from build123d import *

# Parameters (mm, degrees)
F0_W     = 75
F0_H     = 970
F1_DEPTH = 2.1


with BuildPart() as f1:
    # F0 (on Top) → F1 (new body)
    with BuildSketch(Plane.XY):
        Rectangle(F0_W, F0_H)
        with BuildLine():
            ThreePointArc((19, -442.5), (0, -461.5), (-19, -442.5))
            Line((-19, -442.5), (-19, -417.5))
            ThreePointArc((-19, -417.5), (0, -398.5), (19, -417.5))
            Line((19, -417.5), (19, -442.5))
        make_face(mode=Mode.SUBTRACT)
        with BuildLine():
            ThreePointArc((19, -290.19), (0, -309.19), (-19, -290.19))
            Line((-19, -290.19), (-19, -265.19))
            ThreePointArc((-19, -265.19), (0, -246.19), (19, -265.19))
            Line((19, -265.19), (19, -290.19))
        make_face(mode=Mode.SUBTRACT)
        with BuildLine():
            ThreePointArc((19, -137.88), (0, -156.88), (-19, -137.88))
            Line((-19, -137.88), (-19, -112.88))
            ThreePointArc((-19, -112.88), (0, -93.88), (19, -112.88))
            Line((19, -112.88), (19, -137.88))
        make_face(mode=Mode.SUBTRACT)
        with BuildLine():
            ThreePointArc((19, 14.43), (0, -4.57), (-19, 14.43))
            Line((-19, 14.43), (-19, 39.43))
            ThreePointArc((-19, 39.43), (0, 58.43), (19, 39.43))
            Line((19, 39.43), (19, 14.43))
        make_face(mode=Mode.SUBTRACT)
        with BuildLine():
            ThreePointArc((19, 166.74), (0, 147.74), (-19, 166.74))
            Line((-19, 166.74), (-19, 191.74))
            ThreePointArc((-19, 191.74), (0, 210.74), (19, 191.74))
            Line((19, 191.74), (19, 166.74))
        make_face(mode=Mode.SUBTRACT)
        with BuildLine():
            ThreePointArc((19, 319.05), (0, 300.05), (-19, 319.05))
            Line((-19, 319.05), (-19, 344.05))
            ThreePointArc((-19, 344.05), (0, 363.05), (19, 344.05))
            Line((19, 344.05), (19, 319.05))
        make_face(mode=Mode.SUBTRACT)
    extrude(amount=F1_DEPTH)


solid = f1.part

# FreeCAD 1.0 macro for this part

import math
import FreeCAD as App
import Part
import Sketcher


def add_polygon(sketch, points):
    """Adds a closed chain of lines whose ends are joined by coincident constraints."""
    first, n = sketch.GeometryCount, len(points)
    for a, b in zip(points, points[1:] + points[:1]):
        sketch.addGeometry(Part.LineSegment(App.Vector(*a, 0), App.Vector(*b, 0)), False)
    for i in range(n):
        sketch.addConstraint(Sketcher.Constraint("Coincident", first + i, 2, first + (i + 1) % n, 1))

doc = App.newDocument("Part")
params = doc.addObject("Spreadsheet::Sheet", "Params")
for row, (alias, value) in enumerate([
    ("sketch1_radius", "19 mm"),
    ("sketch1_width", "75 mm"),
    ("sketch1_height", "970 mm"),
    ("sketch1_height2", "25 mm"),
    ("pad1_length", "2.1 mm"),
], start=1):
    params.set(f"A{row}", alias)
    params.set(f"B{row}", "=" + value)
    params.setAlias(f"B{row}", alias)

body = doc.addObject("PartDesign::Body", "Body")

# Sketch on XY plane
sketch1 = doc.addObject("Sketcher::SketchObject", "Sketch")
body.addObject(sketch1)
sketch1.AttachmentSupport = (doc.XY_Plane, [""])
sketch1.MapMode = "FlatFace"
add_polygon(sketch1, [(-38, 485), (-38, -485), (38, -485), (38, 485)])  # lines 0-3
sketch1.addGeometry(Part.LineSegment(App.Vector(19, -418, 0), App.Vector(19, -442, 0)), False)  # 4
sketch1.addGeometry(Part.ArcOfCircle(Part.Circle(App.Vector(0, -442, 0), App.Vector(0, 0, 1), 19), math.radians(180), math.radians(360)), False)  # 5
sketch1.addGeometry(Part.LineSegment(App.Vector(-19, -442, 0), App.Vector(-19, -418, 0)), False)  # 6
sketch1.addGeometry(Part.ArcOfCircle(Part.Circle(App.Vector(0, -418, 0), App.Vector(0, 0, 1), 19), math.radians(0), math.radians(180)), False)  # 7
sketch1.addGeometry(Part.LineSegment(App.Vector(19, -265, 0), App.Vector(19, -290, 0)), False)  # 8
sketch1.addGeometry(Part.ArcOfCircle(Part.Circle(App.Vector(0, -290, 0), App.Vector(0, 0, 1), 19), math.radians(180), math.radians(360)), False)  # 9
sketch1.addGeometry(Part.LineSegment(App.Vector(-19, -290, 0), App.Vector(-19, -265, 0)), False)  # 10
sketch1.addGeometry(Part.ArcOfCircle(Part.Circle(App.Vector(0, -265, 0), App.Vector(0, 0, 1), 19), math.radians(0), math.radians(180)), False)  # 11
sketch1.addGeometry(Part.LineSegment(App.Vector(19, -113, 0), App.Vector(19, -138, 0)), False)  # 12
sketch1.addGeometry(Part.ArcOfCircle(Part.Circle(App.Vector(0, -138, 0), App.Vector(0, 0, 1), 19), math.radians(180), math.radians(360)), False)  # 13
sketch1.addGeometry(Part.LineSegment(App.Vector(-19, -138, 0), App.Vector(-19, -113, 0)), False)  # 14
sketch1.addGeometry(Part.ArcOfCircle(Part.Circle(App.Vector(0, -113, 0), App.Vector(0, 0, 1), 19), math.radians(0), math.radians(180)), False)  # 15
sketch1.addGeometry(Part.LineSegment(App.Vector(19, 39, 0), App.Vector(19, 14, 0)), False)  # 16
sketch1.addGeometry(Part.ArcOfCircle(Part.Circle(App.Vector(0, 14, 0), App.Vector(0, 0, 1), 19), math.radians(180), math.radians(360)), False)  # 17
sketch1.addGeometry(Part.LineSegment(App.Vector(-19, 14, 0), App.Vector(-19, 39, 0)), False)  # 18
sketch1.addGeometry(Part.ArcOfCircle(Part.Circle(App.Vector(0, 39, 0), App.Vector(0, 0, 1), 19), math.radians(0), math.radians(180)), False)  # 19
sketch1.addGeometry(Part.LineSegment(App.Vector(19, 192, 0), App.Vector(19, 167, 0)), False)  # 20
sketch1.addGeometry(Part.ArcOfCircle(Part.Circle(App.Vector(0, 167, 0), App.Vector(0, 0, 1), 19), math.radians(180), math.radians(360)), False)  # 21
sketch1.addGeometry(Part.LineSegment(App.Vector(-19, 167, 0), App.Vector(-19, 192, 0)), False)  # 22
sketch1.addGeometry(Part.ArcOfCircle(Part.Circle(App.Vector(0, 192, 0), App.Vector(0, 0, 1), 19), math.radians(0), math.radians(180)), False)  # 23
sketch1.addGeometry(Part.LineSegment(App.Vector(19, 344, 0), App.Vector(19, 319, 0)), False)  # 24
sketch1.addGeometry(Part.ArcOfCircle(Part.Circle(App.Vector(0, 319, 0), App.Vector(0, 0, 1), 19), math.radians(180), math.radians(360)), False)  # 25
sketch1.addGeometry(Part.LineSegment(App.Vector(-19, 319, 0), App.Vector(-19, 344, 0)), False)  # 26
sketch1.addGeometry(Part.ArcOfCircle(Part.Circle(App.Vector(0, 344, 0), App.Vector(0, 0, 1), 19), math.radians(0), math.radians(180)), False)  # 27
sketch1.addConstraint([
    Sketcher.Constraint("Tangent", 4, 2, 5, 2),
    Sketcher.Constraint("Tangent", 5, 1, 6, 1),
    Sketcher.Constraint("Tangent", 6, 2, 7, 2),
    Sketcher.Constraint("Tangent", 7, 1, 4, 1),
    Sketcher.Constraint("Tangent", 8, 2, 9, 2),
    Sketcher.Constraint("Tangent", 9, 1, 10, 1),
    Sketcher.Constraint("Tangent", 10, 2, 11, 2),
    Sketcher.Constraint("Tangent", 11, 1, 8, 1),
    Sketcher.Constraint("Tangent", 12, 2, 13, 2),
    Sketcher.Constraint("Tangent", 13, 1, 14, 1),
    Sketcher.Constraint("Tangent", 14, 2, 15, 2),
    Sketcher.Constraint("Tangent", 15, 1, 12, 1),
    Sketcher.Constraint("Tangent", 16, 2, 17, 2),
    Sketcher.Constraint("Tangent", 17, 1, 18, 1),
    Sketcher.Constraint("Tangent", 18, 2, 19, 2),
    Sketcher.Constraint("Tangent", 19, 1, 16, 1),
    Sketcher.Constraint("Tangent", 20, 2, 21, 2),
    Sketcher.Constraint("Tangent", 21, 1, 22, 1),
    Sketcher.Constraint("Tangent", 22, 2, 23, 2),
    Sketcher.Constraint("Tangent", 23, 1, 20, 1),
    Sketcher.Constraint("Tangent", 24, 2, 25, 2),
    Sketcher.Constraint("Tangent", 25, 1, 26, 1),
    Sketcher.Constraint("Tangent", 26, 2, 27, 2),
    Sketcher.Constraint("Tangent", 27, 1, 24, 1),
    Sketcher.Constraint("Vertical", 0),
    Sketcher.Constraint("Horizontal", 1),
    Sketcher.Constraint("Vertical", 2),
    Sketcher.Constraint("Horizontal", 3),
    Sketcher.Constraint("Vertical", 4),
    Sketcher.Constraint("Vertical", 6),
    Sketcher.Constraint("Vertical", 8),
    Sketcher.Constraint("Vertical", 10),
    Sketcher.Constraint("Vertical", 12),
    Sketcher.Constraint("Vertical", 14),
    Sketcher.Constraint("Vertical", 16),
    Sketcher.Constraint("Vertical", 18),
    Sketcher.Constraint("Vertical", 20),
    Sketcher.Constraint("Vertical", 22),
    Sketcher.Constraint("Vertical", 24),
    Sketcher.Constraint("Vertical", 26),
    Sketcher.Constraint("Equal", 7, 9),
    Sketcher.Constraint("Equal", 11, 13),
    Sketcher.Constraint("Equal", 15, 17),
    Sketcher.Constraint("Equal", 19, 21),
    Sketcher.Constraint("Equal", 23, 25),
    Sketcher.Constraint("Symmetric", 0, 2, 2, 2, -1, 1),
    Sketcher.Constraint("PointOnObject", 5, 3, -2),
    Sketcher.Constraint("PointOnObject", 9, 3, -2),
    Sketcher.Constraint("PointOnObject", 13, 3, -2),
    Sketcher.Constraint("PointOnObject", 17, 3, -2),
    Sketcher.Constraint("PointOnObject", 21, 3, -2),
    Sketcher.Constraint("PointOnObject", 25, 3, -2),
    Sketcher.Constraint("Equal", 6, 8),
    Sketcher.Constraint("Equal", 10, 12),
    Sketcher.Constraint("Equal", 14, 16),
    Sketcher.Constraint("Equal", 18, 20),
    Sketcher.Constraint("Equal", 22, 24),
    Sketcher.Constraint("Radius", 5, 19.0),
    Sketcher.Constraint("DistanceX", 1, 1, 1, 2, 75.0),
    Sketcher.Constraint("DistanceY", 0, 2, 0, 1, 970.0),
    Sketcher.Constraint("DistanceY", 4, 2, 4, 1, 25.0),
    Sketcher.Constraint("DistanceY", 5, 3, -1, 1, 442.5),
    Sketcher.Constraint("DistanceY", 9, 3, -1, 1, 290.19),
    Sketcher.Constraint("DistanceY", 13, 3, -1, 1, 137.88),
    Sketcher.Constraint("DistanceY", -1, 1, 17, 3, 14.43),
    Sketcher.Constraint("DistanceY", -1, 1, 21, 3, 166.74),
    Sketcher.Constraint("DistanceY", -1, 1, 25, 3, 319.05),
])
sketch1.setExpression("Constraints[61]", "Params.sketch1_radius")
sketch1.setExpression("Constraints[62]", "Params.sketch1_width")
sketch1.setExpression("Constraints[63]", "Params.sketch1_height")
sketch1.setExpression("Constraints[64]", "Params.sketch1_height2")
pad1 = doc.addObject("PartDesign::Pad", "Pad")
body.addObject(pad1)
pad1.Profile = sketch1
pad1.setExpression("Length", "Params.pad1_length")

doc.recompute()
